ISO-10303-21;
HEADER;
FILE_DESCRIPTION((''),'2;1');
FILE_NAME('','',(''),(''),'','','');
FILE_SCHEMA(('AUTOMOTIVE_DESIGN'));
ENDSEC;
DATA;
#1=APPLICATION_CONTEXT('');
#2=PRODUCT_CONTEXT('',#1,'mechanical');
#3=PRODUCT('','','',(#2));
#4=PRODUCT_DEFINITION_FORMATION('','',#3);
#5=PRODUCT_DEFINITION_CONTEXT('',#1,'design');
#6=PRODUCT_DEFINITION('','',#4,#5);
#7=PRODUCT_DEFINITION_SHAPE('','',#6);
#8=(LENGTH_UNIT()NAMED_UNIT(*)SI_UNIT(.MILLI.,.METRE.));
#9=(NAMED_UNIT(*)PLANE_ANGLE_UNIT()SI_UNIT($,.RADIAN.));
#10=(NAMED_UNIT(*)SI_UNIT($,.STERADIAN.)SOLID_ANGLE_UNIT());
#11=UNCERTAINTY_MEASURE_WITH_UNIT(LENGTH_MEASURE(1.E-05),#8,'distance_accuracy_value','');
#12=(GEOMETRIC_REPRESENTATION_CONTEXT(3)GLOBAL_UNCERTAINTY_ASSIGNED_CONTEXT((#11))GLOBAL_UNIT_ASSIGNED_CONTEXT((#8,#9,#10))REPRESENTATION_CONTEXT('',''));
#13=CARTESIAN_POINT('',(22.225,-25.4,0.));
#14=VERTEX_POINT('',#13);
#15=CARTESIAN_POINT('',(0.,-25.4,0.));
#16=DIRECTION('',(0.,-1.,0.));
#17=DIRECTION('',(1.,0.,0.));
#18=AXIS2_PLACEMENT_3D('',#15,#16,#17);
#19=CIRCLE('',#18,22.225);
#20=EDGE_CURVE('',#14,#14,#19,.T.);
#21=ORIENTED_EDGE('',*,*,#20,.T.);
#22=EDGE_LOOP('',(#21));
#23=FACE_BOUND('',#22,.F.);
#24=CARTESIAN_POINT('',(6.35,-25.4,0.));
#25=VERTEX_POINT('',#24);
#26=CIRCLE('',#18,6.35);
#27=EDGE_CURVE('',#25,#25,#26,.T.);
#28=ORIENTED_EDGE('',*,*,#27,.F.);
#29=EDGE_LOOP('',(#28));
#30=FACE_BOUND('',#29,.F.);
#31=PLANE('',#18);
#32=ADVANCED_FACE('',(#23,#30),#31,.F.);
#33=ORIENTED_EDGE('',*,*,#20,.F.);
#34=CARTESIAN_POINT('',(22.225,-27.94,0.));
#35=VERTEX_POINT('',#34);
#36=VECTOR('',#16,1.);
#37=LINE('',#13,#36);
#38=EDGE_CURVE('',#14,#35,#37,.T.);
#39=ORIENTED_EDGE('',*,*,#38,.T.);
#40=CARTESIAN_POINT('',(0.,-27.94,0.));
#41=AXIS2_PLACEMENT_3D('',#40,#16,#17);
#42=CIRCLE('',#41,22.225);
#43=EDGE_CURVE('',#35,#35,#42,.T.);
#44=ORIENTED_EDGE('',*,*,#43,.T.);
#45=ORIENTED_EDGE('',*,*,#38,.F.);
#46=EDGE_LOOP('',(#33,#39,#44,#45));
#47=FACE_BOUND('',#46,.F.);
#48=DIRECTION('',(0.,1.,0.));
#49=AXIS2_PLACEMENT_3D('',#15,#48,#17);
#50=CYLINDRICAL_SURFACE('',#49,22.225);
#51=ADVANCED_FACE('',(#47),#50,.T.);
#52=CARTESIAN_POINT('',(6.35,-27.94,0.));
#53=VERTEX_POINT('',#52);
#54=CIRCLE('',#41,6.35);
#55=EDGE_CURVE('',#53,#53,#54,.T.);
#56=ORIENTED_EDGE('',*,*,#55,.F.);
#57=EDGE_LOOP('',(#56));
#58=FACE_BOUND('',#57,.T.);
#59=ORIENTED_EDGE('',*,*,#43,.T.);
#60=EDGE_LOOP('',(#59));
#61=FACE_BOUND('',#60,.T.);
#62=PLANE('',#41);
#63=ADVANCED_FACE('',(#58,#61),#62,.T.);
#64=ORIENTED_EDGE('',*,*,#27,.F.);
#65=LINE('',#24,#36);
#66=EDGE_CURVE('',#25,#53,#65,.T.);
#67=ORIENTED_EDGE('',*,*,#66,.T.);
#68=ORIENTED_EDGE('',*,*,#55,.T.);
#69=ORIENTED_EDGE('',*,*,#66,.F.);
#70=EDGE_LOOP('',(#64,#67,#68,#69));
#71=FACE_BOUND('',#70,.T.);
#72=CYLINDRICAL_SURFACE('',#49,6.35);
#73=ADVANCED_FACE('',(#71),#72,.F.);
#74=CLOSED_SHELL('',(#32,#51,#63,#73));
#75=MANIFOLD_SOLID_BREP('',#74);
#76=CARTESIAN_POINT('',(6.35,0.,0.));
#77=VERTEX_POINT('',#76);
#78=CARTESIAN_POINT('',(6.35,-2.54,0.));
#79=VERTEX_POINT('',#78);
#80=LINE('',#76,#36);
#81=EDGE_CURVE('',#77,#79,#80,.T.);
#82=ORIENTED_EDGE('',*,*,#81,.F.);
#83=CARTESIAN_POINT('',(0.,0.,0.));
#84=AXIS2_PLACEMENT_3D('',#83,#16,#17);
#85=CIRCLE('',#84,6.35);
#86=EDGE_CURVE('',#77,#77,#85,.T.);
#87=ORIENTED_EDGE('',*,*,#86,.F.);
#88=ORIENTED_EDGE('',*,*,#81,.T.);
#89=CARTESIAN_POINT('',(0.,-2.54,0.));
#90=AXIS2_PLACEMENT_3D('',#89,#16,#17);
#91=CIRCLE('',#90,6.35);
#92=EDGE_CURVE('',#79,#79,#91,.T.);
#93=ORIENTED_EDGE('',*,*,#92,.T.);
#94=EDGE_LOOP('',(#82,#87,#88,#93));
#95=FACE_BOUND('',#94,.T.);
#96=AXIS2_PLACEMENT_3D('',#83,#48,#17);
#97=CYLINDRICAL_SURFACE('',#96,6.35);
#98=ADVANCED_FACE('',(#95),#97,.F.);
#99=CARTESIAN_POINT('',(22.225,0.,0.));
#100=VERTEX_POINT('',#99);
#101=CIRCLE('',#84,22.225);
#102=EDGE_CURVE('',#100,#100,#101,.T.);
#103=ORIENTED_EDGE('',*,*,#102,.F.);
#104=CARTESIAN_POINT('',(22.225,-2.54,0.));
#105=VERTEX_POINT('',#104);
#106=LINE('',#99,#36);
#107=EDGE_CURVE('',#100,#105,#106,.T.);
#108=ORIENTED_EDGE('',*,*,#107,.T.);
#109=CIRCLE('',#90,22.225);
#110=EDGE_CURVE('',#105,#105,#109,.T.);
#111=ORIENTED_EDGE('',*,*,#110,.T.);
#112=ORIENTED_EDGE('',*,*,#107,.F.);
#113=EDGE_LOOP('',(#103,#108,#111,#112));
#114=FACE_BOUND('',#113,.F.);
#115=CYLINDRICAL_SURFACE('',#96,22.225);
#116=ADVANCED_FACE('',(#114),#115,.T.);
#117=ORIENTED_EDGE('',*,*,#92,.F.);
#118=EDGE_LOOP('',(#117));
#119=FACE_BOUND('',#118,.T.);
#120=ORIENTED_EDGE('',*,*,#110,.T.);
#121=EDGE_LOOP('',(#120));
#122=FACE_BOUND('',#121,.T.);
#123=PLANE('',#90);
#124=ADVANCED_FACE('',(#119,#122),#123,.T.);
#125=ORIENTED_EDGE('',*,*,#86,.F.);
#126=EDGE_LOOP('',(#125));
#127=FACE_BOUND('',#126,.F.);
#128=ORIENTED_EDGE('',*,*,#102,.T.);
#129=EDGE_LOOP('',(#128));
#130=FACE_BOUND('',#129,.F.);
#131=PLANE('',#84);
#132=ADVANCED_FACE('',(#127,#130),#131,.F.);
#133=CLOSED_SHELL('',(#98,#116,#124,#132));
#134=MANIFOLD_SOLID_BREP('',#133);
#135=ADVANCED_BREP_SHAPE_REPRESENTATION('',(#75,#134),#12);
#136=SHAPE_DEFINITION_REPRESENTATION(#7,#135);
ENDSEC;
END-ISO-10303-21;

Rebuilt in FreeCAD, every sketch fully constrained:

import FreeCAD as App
import Part
import Sketcher
Q = App.Units.Quantity

doc = App.newDocument("Part")
body = doc.addObject("PartDesign::Body", "Body")

# Sketch on XZ plane
sketch1 = doc.addObject("Sketcher::SketchObject", "Sketch")
body.addObject(sketch1)
sketch1.AttachmentSupport = (doc.XZ_Plane, [""])
sketch1.MapMode = "FlatFace"
sketch1.addGeometry([
    Part.Circle(App.Vector(0, 0, 0), App.Vector(0, 0, 1), 22),
    Part.Circle(App.Vector(0, 0, 0), App.Vector(0, 0, 1), 6),
], False)
sketch1.addConstraint([
    Sketcher.Constraint("Coincident", 0, 3, -1, 1),
    Sketcher.Constraint("Coincident", 1, 3, -1, 1),
    Sketcher.Constraint("Diameter", 1, Q("0.5 in")),
    Sketcher.Constraint("Diameter", 0, Q("1.75 in")),
])
pad1 = doc.addObject("PartDesign::Pad", "Pad")
body.addObject(pad1)
pad1.Profile = sketch1
pad1.Length = Q("0.1 in")
body2 = doc.addObject("PartDesign::Body", "Body001")

# Sketch on XZ plane
sketch2 = doc.addObject("Sketcher::SketchObject", "Sketch001")
body2.addObject(sketch2)
sketch2.AttachmentSupport = (doc.getObject("XZ_Plane001"), [""])
sketch2.MapMode = "FlatFace"
sketch2.AttachmentOffset = App.Placement(App.Vector(0, 0, 1 * 25.4), App.Rotation())
sketch2.addGeometry([
    Part.Circle(App.Vector(0, 0, 0), App.Vector(0, 0, 1), 22),
    Part.Circle(App.Vector(0, 0, 0), App.Vector(0, 0, 1), 6),
], False)
sketch2.addConstraint([
    Sketcher.Constraint("Coincident", 0, 3, -1, 1),
    Sketcher.Constraint("Coincident", 1, 3, -1, 1),
    Sketcher.Constraint("Diameter", 1, Q("0.5 in")),
    Sketcher.Constraint("Diameter", 0, Q("1.75 in")),
])
pad2 = doc.addObject("PartDesign::Pad", "Pad001")
body2.addObject(pad2)
pad2.Profile = sketch2
pad2.Length = Q("0.1 in")

doc.recompute()
